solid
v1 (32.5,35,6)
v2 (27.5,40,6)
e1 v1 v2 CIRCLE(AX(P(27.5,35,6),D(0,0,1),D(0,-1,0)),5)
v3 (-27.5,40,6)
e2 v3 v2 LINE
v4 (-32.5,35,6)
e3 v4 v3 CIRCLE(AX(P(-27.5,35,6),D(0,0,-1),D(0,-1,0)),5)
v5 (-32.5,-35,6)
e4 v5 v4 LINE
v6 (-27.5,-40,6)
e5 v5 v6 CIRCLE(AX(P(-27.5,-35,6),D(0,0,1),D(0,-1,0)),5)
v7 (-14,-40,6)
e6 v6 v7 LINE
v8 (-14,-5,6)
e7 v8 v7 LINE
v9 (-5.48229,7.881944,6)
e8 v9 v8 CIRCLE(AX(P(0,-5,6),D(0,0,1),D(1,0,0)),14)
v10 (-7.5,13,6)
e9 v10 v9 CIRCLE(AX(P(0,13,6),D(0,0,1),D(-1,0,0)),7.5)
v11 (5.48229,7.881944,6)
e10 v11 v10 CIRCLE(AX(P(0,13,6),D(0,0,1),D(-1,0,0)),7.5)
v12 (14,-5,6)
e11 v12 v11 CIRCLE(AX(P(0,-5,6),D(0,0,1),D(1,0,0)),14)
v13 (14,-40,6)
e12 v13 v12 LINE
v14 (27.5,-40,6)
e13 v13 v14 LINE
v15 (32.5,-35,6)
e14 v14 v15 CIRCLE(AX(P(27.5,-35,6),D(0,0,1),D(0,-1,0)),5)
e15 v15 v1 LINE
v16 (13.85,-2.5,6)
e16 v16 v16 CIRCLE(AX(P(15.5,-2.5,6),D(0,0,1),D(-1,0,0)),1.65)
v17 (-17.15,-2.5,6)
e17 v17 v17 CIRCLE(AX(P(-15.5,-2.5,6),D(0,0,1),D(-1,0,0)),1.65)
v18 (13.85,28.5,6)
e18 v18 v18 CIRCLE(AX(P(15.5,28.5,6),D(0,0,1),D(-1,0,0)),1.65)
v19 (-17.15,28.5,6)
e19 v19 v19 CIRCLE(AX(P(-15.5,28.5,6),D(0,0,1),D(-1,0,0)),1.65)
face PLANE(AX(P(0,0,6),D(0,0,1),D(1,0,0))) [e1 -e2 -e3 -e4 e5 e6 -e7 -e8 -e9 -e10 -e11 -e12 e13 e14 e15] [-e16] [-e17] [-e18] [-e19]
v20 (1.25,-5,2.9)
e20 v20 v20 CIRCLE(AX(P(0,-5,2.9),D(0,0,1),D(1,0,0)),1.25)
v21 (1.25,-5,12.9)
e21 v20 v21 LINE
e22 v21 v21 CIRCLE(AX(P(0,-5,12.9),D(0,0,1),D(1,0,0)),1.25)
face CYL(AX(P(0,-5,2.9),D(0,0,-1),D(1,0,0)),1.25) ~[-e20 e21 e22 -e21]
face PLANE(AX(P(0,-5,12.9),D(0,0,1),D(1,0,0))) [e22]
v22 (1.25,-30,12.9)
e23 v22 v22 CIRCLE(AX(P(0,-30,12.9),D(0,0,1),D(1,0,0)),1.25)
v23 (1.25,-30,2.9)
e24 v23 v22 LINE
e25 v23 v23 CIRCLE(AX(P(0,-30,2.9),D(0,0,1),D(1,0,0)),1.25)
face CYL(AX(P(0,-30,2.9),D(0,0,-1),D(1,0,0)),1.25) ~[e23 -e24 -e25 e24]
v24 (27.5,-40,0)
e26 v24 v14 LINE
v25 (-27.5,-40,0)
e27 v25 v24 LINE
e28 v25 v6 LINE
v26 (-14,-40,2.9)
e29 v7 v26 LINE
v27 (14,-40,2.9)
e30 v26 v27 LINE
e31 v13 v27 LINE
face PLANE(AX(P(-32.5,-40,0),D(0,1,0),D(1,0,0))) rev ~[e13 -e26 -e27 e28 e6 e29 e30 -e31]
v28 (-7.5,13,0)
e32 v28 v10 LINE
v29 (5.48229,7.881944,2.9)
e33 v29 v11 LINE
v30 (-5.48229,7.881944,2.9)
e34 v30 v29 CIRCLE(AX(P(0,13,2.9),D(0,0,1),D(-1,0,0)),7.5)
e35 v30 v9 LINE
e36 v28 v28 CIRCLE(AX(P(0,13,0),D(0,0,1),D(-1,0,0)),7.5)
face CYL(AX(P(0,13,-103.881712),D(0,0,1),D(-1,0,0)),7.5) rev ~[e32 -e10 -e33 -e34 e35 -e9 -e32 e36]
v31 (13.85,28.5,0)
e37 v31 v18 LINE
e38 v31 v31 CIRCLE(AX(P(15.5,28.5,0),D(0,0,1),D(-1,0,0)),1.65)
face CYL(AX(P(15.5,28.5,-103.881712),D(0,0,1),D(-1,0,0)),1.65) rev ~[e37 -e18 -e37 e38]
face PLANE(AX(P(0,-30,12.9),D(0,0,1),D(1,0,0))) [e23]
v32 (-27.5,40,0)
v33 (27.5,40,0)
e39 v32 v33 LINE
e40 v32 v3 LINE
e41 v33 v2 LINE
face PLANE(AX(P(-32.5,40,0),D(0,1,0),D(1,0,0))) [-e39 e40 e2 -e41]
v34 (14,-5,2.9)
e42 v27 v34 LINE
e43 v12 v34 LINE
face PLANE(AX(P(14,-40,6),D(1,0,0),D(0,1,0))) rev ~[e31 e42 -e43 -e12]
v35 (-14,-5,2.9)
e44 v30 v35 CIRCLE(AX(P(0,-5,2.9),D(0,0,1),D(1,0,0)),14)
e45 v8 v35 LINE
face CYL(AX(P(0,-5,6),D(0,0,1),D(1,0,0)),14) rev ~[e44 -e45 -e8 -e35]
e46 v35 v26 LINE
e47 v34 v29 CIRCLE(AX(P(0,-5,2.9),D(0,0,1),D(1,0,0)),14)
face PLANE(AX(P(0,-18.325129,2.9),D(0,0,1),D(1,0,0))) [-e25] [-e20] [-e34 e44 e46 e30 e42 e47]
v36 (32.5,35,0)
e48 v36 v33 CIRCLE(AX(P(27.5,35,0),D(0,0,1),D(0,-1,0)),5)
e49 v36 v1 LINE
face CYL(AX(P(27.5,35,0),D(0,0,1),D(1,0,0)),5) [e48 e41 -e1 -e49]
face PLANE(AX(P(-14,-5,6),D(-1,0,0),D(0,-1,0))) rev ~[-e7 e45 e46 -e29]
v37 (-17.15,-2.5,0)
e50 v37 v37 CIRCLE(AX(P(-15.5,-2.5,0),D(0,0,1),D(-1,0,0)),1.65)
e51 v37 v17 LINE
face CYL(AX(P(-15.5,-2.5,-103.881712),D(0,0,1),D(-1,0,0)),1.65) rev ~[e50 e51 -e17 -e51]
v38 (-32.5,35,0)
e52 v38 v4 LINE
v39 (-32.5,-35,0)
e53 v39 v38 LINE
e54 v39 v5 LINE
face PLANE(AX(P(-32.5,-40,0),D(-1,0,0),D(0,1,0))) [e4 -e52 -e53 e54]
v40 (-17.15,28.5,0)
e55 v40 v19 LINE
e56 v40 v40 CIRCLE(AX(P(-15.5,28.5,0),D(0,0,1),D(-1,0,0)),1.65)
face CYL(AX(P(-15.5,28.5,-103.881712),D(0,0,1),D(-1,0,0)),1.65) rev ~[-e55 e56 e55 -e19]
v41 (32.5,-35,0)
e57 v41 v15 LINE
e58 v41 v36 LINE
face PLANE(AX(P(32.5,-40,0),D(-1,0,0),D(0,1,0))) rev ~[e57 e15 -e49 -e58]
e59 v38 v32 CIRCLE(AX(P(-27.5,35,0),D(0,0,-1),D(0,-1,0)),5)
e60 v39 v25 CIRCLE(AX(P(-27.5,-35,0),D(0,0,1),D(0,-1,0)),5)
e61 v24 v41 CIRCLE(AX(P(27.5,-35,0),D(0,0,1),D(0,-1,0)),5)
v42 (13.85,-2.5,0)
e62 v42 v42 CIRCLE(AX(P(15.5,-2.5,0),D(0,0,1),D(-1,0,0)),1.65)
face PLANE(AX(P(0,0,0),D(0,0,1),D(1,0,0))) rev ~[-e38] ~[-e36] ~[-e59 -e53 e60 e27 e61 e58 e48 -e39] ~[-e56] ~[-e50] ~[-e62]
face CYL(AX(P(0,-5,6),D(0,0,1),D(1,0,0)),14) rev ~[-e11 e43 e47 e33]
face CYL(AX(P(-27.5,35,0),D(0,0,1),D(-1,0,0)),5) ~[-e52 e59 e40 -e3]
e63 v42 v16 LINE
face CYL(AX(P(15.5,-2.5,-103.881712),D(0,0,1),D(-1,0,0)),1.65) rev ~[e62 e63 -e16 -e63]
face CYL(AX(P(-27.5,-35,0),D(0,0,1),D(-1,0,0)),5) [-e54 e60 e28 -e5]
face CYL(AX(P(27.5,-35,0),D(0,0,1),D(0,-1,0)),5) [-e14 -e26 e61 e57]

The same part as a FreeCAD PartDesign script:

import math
import FreeCAD as App
import Part
import Sketcher
Q = App.Units.Quantity


def edges_at(feature, points):
    """Names of the edges that pass closest to the given points."""
    edges = feature.Shape.Edges
    near = lambda p: min(range(len(edges)), key=lambda i: edges[i].distToShape(Part.Vertex(*p))[0])
    return sorted({f"Edge{near(p) + 1}" for p in points})


def add_polygon(sketch, points):
    """Adds a closed chain of lines whose ends are joined by coincident constraints."""
    first, n = sketch.GeometryCount, len(points)
    for a, b in zip(points, points[1:] + points[:1]):
        sketch.addGeometry(Part.LineSegment(App.Vector(*a, 0), App.Vector(*b, 0)), False)
    for i in range(n):
        sketch.addConstraint(Sketcher.Constraint("Coincident", first + i, 2, first + (i + 1) % n, 1))

doc = App.newDocument("Part")
params = doc.addObject("Spreadsheet::Sheet", "Params")
for row, (alias, value) in enumerate([
    ("sketch1_width", "65 mm"),
    ("sketch1_height", "80 mm"),
    ("pad1_length", "6 mm"),
    ("fillet_radius", "5 mm"),
    ("sketch2_radius", "14 mm"),
    ("sketch2_height", "35 mm"),
    ("pocket1_length", "3.1 mm"),
    ("sketch3_diameter", "2.5 mm"),
    ("pad2_length", "10 mm"),
    ("sketch4_diameter", "15 mm"),
    ("hole_diameter", "15 mm"),
    ("sketch5_diameter", "3.3 mm"),
    ("hole2_diameter", "3.3 mm"),
], start=1):
    params.set(f"A{row}", alias)
    params.set(f"B{row}", "=" + value)
    params.setAlias(f"B{row}", alias)

body = doc.addObject("PartDesign::Body", "Body")

# Sketch on XY plane
sketch1 = body.newObject("Sketcher::SketchObject", "Sketch")
sketch1.AttachmentSupport = (doc.getObject("XY_Plane"), [""])
sketch1.MapMode = "FlatFace"
add_polygon(sketch1, [(-32.5, 40), (-32.5, -40), (32.5, -40), (32.5, 40)])  # lines 0-3
sketch1.addConstraint([
    Sketcher.Constraint("Vertical", 0),
    Sketcher.Constraint("Horizontal", 1),
    Sketcher.Constraint("Vertical", 2),
    Sketcher.Constraint("Horizontal", 3),
    Sketcher.Constraint("Symmetric", 0, 2, 2, 2, -1, 1),
    Sketcher.Constraint("DistanceX", 1, 1, 1, 2, Q("65 mm")),
    Sketcher.Constraint("DistanceY", 0, 2, 0, 1, Q("80 mm")),
])
sketch1.setExpression("Constraints[9]", "Params.sketch1_width")
sketch1.setExpression("Constraints[10]", "Params.sketch1_height")
pad1 = body.newObject("PartDesign::Pad", "Pad")
pad1.Profile = sketch1
pad1.setExpression("Length", "Params.pad1_length")
doc.recompute()

fillet = body.newObject("PartDesign::Fillet", "Fillet")
fillet.Base = (pad1, edges_at(pad1, [
    (32.5, -40, 3),
    (32.5, 40, 3),
    (-32.5, 40, 3),
    (-32.5, -40, 3),
]))
fillet.setExpression("Radius", "Params.fillet_radius")

# Sketch on XY plane
sketch2 = body.newObject("Sketcher::SketchObject", "Sketch001")
sketch2.AttachmentSupport = (doc.getObject("XY_Plane"), [""])
sketch2.MapMode = "FlatFace"
sketch2.AttachmentOffset = App.Placement(App.Vector(0, 0, 6), App.Rotation())
sketch2.addGeometry([
    Part.LineSegment(App.Vector(14, -40, 0), App.Vector(14, -5, 0)),
    Part.ArcOfCircle(Part.Circle(App.Vector(0, -5, 0), App.Vector(0, 0, 1), 14), math.radians(0), math.radians(180)),
    Part.LineSegment(App.Vector(-14, -5, 0), App.Vector(-14, -40, 0)),
    Part.LineSegment(App.Vector(-14, -40, 0), App.Vector(14, -40, 0)),
], False)
sketch2.addConstraint([
    Sketcher.Constraint("Tangent", 0, 2, 1, 1),
    Sketcher.Constraint("Tangent", 1, 2, 2, 1),
    Sketcher.Constraint("Coincident", 2, 2, 3, 1),
    Sketcher.Constraint("Coincident", 3, 2, 0, 1),
    Sketcher.Constraint("Vertical", 0),
    Sketcher.Constraint("Vertical", 2),
    Sketcher.Constraint("Horizontal", 3),
    Sketcher.Constraint("PointOnObject", 1, 3, -2),
    Sketcher.Constraint("Radius", 1, Q("14 mm")),
    Sketcher.Constraint("DistanceY", 0, 1, 0, 2, Q("35 mm")),
    Sketcher.Constraint("DistanceY", 1, 3, -1, 1, Q("5 mm")),
])
sketch2.setExpression("Constraints[8]", "Params.sketch2_radius")
sketch2.setExpression("Constraints[9]", "Params.sketch2_height")
pocket1 = body.newObject("PartDesign::Pocket", "Pocket")
pocket1.Profile = sketch2
pocket1.setExpression("Length", "Params.pocket1_length")

# Sketch on XY plane
sketch3 = body.newObject("Sketcher::SketchObject", "Sketch002")
sketch3.AttachmentSupport = (doc.getObject("XY_Plane"), [""])
sketch3.MapMode = "FlatFace"
sketch3.AttachmentOffset = App.Placement(App.Vector(0, 0, 2.9), App.Rotation())
sketch3.addGeometry([
    Part.Circle(App.Vector(0, -5, 0), App.Vector(0, 0, 1), 1.25),
    Part.Circle(App.Vector(0, -30, 0), App.Vector(0, 0, 1), 1.25),
], False)
sketch3.addConstraint([
    Sketcher.Constraint("Equal", 0, 1),
    Sketcher.Constraint("PointOnObject", 0, 3, -2),
    Sketcher.Constraint("PointOnObject", 1, 3, -2),
    Sketcher.Constraint("Diameter", 0, Q("2.5 mm")),
    Sketcher.Constraint("DistanceY", 0, 3, -1, 1, Q("5 mm")),
    Sketcher.Constraint("DistanceY", 1, 3, -1, 1, Q("30 mm")),
])
sketch3.setExpression("Constraints[3]", "Params.sketch3_diameter")
pad2 = body.newObject("PartDesign::Pad", "Pad001")
pad2.Profile = sketch3
pad2.setExpression("Length", "Params.pad2_length")

# Sketch on XY plane
sketch4 = body.newObject("Sketcher::SketchObject", "Sketch003")
sketch4.AttachmentSupport = (doc.getObject("XY_Plane"), [""])
sketch4.MapMode = "FlatFace"
sketch4.addGeometry(Part.Circle(App.Vector(0, 13, 0), App.Vector(0, 0, 1), 7.5), False)
sketch4.addConstraint([
    Sketcher.Constraint("PointOnObject", 0, 3, -2),
    Sketcher.Constraint("Diameter", 0, Q("15 mm")),
    Sketcher.Constraint("DistanceY", -1, 1, 0, 3, Q("13 mm")),
])
sketch4.setExpression("Constraints[1]", "Params.sketch4_diameter")
doc.recompute()
hole = body.newObject("PartDesign::Hole", "Hole")
hole.Profile = sketch4
hole.ThreadType = "None"
hole.setExpression("Diameter", "Params.hole_diameter")
hole.DepthType = "ThroughAll"
hole.Reversed = True

# Sketch on XY plane
sketch5 = body.newObject("Sketcher::SketchObject", "Sketch004")
sketch5.AttachmentSupport = (doc.getObject("XY_Plane"), [""])
sketch5.MapMode = "FlatFace"
sketch5.addGeometry([
    Part.Circle(App.Vector(15.5, 28.5, 0), App.Vector(0, 0, 1), 1.65),
    Part.Circle(App.Vector(15.5, -2.5, 0), App.Vector(0, 0, 1), 1.65),
    Part.Circle(App.Vector(-15.5, -2.5, 0), App.Vector(0, 0, 1), 1.65),
    Part.Circle(App.Vector(-15.5, 28.5, 0), App.Vector(0, 0, 1), 1.65),
], False)
sketch5.addConstraint([
    Sketcher.Constraint("Equal", 0, 1),
    Sketcher.Constraint("Equal", 1, 2),
    Sketcher.Constraint("Equal", 2, 3),
    Sketcher.Constraint("Symmetric", 1, 3, 2, 3, -2),
    Sketcher.Constraint("Symmetric", 0, 3, 3, 3, -2),
    Sketcher.Constraint("Vertical", 0, 3, 1, 3),
    Sketcher.Constraint("Diameter", 0, Q("3.3 mm")),
    Sketcher.Constraint("DistanceY", 1, 3, 0, 3, Q("31 mm")),
    Sketcher.Constraint("DistanceX", 2, 3, 1, 3, Q("31 mm")),
    Sketcher.Constraint("DistanceY", -1, 1, 0, 3, Q("28.5 mm")),
])
sketch5.setExpression("Constraints[6]", "Params.sketch5_diameter")
doc.recompute()
hole2 = body.newObject("PartDesign::Hole", "Hole001")
hole2.Profile = sketch5
hole2.ThreadType = "None"
hole2.setExpression("Diameter", "Params.hole2_diameter")
hole2.DepthType = "ThroughAll"
hole2.Reversed = True

doc.recompute()
